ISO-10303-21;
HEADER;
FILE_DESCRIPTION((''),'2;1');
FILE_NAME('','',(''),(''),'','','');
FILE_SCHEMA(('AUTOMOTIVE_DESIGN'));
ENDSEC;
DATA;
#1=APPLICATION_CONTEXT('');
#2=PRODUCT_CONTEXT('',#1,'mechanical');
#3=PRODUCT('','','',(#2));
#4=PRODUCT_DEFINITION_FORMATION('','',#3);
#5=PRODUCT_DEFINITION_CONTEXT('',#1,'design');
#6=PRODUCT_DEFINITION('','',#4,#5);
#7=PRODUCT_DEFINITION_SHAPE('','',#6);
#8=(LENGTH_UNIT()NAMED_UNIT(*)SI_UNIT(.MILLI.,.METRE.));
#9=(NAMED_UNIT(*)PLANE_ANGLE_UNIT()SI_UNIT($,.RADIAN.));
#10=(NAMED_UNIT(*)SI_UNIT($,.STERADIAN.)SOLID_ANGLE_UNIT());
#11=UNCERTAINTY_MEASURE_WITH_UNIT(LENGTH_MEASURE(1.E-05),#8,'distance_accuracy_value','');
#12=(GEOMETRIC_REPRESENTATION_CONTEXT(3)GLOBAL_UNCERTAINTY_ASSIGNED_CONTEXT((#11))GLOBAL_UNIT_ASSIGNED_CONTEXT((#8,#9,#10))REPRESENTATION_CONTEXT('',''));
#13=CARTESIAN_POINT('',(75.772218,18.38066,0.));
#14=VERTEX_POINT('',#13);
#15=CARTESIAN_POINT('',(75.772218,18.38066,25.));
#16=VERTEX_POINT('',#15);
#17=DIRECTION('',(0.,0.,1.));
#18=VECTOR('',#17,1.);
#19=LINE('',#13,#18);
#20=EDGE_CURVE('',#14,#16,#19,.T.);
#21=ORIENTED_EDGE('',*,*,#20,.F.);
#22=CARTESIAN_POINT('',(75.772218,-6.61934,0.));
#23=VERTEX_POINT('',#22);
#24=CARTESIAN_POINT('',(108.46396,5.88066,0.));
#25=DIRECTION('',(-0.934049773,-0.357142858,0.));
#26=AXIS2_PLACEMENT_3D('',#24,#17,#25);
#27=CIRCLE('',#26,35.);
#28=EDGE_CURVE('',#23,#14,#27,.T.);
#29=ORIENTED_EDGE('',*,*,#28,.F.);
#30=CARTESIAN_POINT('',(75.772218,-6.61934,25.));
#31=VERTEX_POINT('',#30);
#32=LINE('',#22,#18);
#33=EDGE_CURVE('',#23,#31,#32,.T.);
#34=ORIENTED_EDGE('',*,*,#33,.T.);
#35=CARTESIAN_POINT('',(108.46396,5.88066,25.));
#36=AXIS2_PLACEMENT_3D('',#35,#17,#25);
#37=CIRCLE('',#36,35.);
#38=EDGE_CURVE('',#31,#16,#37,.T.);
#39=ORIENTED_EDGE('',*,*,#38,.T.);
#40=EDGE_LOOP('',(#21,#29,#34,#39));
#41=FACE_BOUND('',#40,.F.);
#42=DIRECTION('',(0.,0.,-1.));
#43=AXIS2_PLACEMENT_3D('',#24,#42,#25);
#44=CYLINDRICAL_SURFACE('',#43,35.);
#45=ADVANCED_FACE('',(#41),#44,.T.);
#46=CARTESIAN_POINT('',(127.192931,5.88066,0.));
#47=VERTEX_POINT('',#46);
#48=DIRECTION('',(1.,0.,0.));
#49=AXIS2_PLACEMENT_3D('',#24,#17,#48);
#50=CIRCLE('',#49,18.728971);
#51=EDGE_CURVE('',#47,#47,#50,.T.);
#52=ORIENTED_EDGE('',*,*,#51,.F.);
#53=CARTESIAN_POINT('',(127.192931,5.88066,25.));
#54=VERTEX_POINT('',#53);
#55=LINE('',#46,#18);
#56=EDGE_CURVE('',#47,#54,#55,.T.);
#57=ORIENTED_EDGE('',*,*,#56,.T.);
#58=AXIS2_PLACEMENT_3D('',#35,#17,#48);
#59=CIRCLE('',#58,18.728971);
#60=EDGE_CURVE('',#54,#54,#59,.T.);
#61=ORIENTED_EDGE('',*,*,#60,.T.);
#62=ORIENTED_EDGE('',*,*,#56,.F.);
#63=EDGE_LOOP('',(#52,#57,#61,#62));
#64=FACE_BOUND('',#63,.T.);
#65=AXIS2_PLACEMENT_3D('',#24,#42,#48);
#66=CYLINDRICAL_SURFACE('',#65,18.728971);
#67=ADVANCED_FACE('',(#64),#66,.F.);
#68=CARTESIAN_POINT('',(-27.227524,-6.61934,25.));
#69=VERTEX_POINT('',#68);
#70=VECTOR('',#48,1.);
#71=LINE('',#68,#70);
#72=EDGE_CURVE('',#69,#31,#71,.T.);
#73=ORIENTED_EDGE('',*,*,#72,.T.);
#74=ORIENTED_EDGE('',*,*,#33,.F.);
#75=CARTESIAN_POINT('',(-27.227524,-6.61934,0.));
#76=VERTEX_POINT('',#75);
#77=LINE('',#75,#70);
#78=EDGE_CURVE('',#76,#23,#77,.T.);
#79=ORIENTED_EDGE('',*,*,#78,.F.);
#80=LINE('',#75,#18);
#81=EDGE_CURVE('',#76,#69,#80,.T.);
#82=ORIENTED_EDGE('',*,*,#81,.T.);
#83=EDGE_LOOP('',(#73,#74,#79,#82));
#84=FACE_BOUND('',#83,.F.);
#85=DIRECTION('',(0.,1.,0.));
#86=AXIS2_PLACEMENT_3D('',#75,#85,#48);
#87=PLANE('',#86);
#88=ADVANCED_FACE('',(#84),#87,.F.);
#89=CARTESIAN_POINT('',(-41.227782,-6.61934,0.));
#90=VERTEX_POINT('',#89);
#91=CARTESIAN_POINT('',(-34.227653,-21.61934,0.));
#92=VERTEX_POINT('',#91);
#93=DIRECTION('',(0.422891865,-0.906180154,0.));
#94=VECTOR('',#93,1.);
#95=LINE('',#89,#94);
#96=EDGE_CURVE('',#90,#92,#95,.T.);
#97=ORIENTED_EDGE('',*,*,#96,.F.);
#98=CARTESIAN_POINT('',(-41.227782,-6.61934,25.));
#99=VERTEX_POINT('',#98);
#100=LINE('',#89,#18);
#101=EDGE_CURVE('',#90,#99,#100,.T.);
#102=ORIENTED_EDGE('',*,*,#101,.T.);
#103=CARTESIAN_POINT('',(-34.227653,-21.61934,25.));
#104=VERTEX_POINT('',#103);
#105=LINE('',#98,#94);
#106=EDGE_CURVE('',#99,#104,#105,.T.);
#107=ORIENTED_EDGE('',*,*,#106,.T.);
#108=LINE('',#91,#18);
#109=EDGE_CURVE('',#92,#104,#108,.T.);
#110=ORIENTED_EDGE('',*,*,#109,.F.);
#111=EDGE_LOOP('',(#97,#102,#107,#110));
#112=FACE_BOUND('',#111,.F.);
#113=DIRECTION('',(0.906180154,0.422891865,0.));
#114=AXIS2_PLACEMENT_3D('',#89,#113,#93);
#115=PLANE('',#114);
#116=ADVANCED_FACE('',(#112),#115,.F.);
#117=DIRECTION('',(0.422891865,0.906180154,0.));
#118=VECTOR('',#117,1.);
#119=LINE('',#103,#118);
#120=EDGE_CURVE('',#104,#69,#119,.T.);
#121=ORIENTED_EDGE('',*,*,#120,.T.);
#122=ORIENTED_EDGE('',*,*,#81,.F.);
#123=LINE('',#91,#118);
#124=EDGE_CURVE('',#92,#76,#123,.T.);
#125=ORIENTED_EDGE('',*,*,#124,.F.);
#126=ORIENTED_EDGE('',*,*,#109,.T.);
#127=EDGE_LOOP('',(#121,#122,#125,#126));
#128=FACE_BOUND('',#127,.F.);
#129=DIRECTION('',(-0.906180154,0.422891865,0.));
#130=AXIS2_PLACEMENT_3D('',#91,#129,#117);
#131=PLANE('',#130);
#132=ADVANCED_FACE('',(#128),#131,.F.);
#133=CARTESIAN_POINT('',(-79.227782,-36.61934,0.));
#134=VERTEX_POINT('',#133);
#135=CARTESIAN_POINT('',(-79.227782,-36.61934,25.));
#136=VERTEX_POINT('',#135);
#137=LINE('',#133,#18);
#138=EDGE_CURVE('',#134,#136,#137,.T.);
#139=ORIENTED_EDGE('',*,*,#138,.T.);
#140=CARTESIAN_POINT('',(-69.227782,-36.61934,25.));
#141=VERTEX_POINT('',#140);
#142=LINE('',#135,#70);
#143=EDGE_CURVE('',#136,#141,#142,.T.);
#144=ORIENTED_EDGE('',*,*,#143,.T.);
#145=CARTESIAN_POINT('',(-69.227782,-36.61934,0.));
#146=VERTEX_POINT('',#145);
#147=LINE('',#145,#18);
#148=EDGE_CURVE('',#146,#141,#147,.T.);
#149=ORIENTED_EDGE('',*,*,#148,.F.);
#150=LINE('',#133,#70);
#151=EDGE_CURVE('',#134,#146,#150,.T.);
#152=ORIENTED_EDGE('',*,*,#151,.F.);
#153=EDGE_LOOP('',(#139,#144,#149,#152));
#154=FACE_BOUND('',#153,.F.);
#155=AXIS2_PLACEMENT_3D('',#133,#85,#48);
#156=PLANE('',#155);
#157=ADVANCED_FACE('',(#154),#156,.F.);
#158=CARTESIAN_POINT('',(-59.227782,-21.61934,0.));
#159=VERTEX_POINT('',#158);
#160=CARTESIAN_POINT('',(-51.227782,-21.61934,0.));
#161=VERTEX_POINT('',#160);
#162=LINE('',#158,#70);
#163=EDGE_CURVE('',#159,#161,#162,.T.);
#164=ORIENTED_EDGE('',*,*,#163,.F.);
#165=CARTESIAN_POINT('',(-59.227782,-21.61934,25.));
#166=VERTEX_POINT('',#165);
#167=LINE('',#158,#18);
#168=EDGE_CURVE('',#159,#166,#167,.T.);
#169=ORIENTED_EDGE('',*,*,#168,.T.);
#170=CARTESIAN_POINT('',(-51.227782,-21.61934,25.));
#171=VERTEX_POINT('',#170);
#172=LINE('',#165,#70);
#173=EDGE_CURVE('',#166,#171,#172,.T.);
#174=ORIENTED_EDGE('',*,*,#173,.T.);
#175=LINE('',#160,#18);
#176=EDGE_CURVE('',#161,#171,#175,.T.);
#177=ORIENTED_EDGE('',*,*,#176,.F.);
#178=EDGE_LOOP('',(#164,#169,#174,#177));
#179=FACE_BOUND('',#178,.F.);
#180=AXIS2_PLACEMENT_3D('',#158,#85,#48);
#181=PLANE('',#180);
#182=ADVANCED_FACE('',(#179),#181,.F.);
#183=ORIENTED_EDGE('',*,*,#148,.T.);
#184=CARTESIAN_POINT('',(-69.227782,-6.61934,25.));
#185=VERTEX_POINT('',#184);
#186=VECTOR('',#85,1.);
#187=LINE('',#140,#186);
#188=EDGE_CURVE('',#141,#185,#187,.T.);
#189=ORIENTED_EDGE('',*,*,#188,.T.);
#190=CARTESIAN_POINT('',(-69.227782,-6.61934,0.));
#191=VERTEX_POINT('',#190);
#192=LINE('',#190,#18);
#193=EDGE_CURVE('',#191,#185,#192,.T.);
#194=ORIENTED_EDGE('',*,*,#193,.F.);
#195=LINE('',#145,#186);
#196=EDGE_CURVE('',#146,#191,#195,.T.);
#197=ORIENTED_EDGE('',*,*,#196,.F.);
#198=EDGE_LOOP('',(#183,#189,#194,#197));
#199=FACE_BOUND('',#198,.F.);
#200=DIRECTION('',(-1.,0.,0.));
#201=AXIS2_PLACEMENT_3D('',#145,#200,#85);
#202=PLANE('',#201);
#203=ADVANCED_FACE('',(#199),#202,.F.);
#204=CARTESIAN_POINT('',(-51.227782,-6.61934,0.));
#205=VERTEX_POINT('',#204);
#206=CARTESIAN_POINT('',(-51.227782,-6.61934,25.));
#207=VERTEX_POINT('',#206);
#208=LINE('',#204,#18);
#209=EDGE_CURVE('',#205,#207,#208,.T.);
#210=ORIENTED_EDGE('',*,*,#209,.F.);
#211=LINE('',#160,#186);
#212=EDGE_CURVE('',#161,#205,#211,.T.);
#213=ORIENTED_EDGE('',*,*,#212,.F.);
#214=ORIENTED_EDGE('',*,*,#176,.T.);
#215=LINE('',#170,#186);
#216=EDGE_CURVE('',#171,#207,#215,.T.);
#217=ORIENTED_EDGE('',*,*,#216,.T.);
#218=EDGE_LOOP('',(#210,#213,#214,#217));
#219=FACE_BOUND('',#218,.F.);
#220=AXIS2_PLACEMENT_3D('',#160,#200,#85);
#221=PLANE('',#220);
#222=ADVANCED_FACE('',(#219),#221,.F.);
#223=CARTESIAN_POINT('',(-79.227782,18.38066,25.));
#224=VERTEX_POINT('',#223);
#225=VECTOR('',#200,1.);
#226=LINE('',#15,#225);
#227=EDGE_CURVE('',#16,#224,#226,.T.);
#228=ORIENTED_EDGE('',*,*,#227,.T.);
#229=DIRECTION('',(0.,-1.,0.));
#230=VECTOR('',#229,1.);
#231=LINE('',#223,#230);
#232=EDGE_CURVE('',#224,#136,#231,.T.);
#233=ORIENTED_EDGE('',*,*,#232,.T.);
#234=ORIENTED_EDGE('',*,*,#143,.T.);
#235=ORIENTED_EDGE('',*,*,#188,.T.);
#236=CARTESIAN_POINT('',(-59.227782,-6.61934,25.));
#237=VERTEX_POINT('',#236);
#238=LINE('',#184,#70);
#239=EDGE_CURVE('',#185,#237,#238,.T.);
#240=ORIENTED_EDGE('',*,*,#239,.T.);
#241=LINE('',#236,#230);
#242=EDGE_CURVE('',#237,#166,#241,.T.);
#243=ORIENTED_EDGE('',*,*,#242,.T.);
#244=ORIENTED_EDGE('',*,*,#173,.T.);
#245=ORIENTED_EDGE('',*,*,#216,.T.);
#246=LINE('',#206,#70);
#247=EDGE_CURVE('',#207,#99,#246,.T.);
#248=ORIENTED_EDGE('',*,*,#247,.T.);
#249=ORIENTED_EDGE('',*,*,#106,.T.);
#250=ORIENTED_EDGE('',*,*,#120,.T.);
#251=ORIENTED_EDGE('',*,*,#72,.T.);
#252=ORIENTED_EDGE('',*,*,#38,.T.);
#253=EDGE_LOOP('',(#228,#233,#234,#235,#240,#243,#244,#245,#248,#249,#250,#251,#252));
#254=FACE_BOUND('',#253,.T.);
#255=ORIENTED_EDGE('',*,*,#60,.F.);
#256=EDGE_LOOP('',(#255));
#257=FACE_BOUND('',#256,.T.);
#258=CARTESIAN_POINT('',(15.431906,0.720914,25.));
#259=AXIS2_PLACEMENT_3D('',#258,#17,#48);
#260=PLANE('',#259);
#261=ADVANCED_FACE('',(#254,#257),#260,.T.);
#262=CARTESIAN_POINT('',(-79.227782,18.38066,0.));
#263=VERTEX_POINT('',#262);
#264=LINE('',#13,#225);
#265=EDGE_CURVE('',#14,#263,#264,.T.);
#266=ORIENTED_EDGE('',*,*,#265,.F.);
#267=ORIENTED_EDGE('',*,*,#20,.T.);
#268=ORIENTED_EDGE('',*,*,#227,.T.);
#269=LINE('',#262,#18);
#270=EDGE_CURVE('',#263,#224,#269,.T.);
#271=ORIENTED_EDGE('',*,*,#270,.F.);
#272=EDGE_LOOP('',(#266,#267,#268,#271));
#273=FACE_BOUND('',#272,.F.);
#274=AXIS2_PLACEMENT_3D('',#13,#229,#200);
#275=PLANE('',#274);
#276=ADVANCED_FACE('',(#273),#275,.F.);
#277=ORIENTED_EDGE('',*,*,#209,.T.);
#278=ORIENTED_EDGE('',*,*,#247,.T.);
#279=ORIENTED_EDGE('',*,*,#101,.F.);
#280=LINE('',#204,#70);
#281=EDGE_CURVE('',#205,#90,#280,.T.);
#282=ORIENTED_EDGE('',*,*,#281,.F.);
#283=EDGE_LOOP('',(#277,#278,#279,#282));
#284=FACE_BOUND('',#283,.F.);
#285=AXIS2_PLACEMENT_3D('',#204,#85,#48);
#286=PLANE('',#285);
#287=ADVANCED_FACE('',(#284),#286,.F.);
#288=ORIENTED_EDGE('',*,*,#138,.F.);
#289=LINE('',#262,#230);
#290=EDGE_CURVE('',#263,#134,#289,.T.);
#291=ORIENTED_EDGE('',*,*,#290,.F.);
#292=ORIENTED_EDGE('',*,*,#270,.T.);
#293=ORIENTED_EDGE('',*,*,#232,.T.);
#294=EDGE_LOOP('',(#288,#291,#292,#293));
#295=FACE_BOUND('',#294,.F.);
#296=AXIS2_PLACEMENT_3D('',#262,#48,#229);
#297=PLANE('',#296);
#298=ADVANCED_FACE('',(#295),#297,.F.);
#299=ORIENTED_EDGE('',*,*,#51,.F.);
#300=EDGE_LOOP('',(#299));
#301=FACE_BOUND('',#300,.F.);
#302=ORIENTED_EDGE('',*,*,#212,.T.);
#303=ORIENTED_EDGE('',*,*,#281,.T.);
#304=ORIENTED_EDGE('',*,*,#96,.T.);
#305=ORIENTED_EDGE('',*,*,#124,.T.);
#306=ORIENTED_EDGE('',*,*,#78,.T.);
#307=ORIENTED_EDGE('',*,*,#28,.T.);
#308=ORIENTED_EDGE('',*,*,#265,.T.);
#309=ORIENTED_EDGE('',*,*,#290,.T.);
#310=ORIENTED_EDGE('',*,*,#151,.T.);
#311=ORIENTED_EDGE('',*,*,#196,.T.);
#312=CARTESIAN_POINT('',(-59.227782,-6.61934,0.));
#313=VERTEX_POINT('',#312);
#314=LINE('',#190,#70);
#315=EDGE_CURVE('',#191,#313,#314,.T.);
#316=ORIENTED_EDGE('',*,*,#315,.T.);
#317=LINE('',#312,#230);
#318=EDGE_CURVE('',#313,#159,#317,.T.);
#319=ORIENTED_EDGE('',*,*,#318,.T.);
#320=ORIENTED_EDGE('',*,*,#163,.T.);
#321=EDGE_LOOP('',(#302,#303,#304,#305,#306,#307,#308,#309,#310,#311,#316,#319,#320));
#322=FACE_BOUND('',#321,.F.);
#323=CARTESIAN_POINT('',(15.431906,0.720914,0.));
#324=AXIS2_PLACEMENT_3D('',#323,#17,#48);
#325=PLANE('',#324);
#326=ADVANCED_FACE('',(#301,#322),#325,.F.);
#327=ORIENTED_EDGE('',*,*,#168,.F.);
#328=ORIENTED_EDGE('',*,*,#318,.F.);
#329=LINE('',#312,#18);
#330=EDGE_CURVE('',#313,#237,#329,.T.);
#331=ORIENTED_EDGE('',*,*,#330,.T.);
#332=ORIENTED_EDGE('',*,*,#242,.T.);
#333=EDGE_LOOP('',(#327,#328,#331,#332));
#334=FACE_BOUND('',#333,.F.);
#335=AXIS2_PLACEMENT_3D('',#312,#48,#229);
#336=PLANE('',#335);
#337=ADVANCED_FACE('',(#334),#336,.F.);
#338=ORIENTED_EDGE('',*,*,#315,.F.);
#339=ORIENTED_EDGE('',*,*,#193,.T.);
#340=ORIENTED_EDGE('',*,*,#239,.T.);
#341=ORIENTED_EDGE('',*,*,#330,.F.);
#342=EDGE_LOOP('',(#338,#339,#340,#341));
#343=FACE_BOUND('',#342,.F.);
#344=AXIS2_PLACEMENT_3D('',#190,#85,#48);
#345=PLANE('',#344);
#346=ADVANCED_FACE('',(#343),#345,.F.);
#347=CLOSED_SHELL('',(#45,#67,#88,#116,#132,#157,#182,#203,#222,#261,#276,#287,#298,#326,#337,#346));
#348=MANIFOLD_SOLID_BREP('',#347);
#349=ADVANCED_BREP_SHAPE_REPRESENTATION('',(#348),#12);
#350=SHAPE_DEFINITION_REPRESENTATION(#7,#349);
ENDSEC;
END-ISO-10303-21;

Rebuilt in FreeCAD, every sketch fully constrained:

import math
import FreeCAD as App
import Part
import Sketcher
from FreeCAD import Vector

doc = App.newDocument("Part")
body = doc.addObject("PartDesign::Body", "Body")

sketch1 = doc.addObject("Sketcher::SketchObject", "Sketch")
body.addObject(sketch1)
sketch1.AttachmentSupport = (doc.XY_Plane, [""])
sketch1.MapMode = "FlatFace"
sketch1.addGeometry([
    Part.LineSegment(Vector(76, 18, 0), Vector(-79, 18, 0)),
    Part.LineSegment(Vector(-79, 18, 0), Vector(-79, -37, 0)),
    Part.LineSegment(Vector(-79, -37, 0), Vector(-69, -37, 0)),
    Part.LineSegment(Vector(-69, -37, 0), Vector(-69, -7, 0)),
    Part.LineSegment(Vector(-69, -7, 0), Vector(-59, -7, 0)),
    Part.LineSegment(Vector(-59, -7, 0), Vector(-59, -22, 0)),
    Part.LineSegment(Vector(-59, -22, 0), Vector(-51, -22, 0)),
    Part.LineSegment(Vector(-51, -22, 0), Vector(-51, -7, 0)),
    Part.LineSegment(Vector(-51, -7, 0), Vector(-41, -7, 0)),
    Part.LineSegment(Vector(-41, -7, 0), Vector(-34, -22, 0)),
    Part.LineSegment(Vector(-34, -22, 0), Vector(-27, -7, 0)),
    Part.LineSegment(Vector(-27, -7, 0), Vector(76, -7, 0)),
    Part.ArcOfCircle(Part.Circle(Vector(108, 6, 0), Vector(0, 0, 1), 35), math.radians(-159), math.radians(159)),
    Part.Circle(Vector(108, 6, 0), Vector(0, 0, 1), 19),
], False)
sketch1.addConstraint([
    Sketcher.Constraint("Coincident", 0, 2, 1, 1),
    Sketcher.Constraint("Coincident", 1, 2, 2, 1),
    Sketcher.Constraint("Coincident", 2, 2, 3, 1),
    Sketcher.Constraint("Coincident", 3, 2, 4, 1),
    Sketcher.Constraint("Coincident", 4, 2, 5, 1),
    Sketcher.Constraint("Coincident", 5, 2, 6, 1),
    Sketcher.Constraint("Coincident", 6, 2, 7, 1),
    Sketcher.Constraint("Coincident", 7, 2, 8, 1),
    Sketcher.Constraint("Coincident", 8, 2, 9, 1),
    Sketcher.Constraint("Coincident", 9, 2, 10, 1),
    Sketcher.Constraint("Coincident", 10, 2, 11, 1),
    Sketcher.Constraint("Coincident", 11, 2, 12, 1),
    Sketcher.Constraint("Coincident", 12, 2, 0, 1),
    Sketcher.Constraint("Horizontal", 0),
    Sketcher.Constraint("Vertical", 1),
    Sketcher.Constraint("Horizontal", 2),
    Sketcher.Constraint("Vertical", 3),
    Sketcher.Constraint("Horizontal", 4),
    Sketcher.Constraint("Vertical", 5),
    Sketcher.Constraint("Horizontal", 6),
    Sketcher.Constraint("Vertical", 7),
    Sketcher.Constraint("Horizontal", 8),
    Sketcher.Constraint("Horizontal", 11),
    Sketcher.Constraint("Coincident", 13, 3, 12, 3),
    Sketcher.Constraint("Horizontal", 4, 2, 7, 2),
    Sketcher.Constraint("Horizontal", 6, 2, 9, 2),
    Sketcher.Constraint("Horizontal", 8, 2, 10, 2),
    Sketcher.Constraint("Vertical", 11, 2, 12, 2),
    Sketcher.Constraint("Equal", 2, 4),
    Sketcher.Constraint("Equal", 4, 8),
    Sketcher.Constraint("Equal", 9, 10),
    Sketcher.Constraint("Radius", 12, 35.0),
    Sketcher.Constraint("DistanceX", 0, 2, 0, 1, 155.0),
    Sketcher.Constraint("DistanceX", 2, 1, 2, 2, 10.0),
    Sketcher.Constraint("DistanceX", 6, 1, 6, 2, 8.0),
    Sketcher.Constraint("DistanceY", 1, 2, 1, 1, 55.0),
    Sketcher.Constraint("DistanceY", 3, 1, 3, 2, 30.0),
    Sketcher.Constraint("DistanceY", 5, 2, 5, 1, 15.0),
    Sketcher.Constraint("Distance", 9, 16.553),
    Sketcher.Constraint("Diameter", 13, 37.457942),
    Sketcher.Constraint("DistanceX", -1, 1, 12, 3, 108.46396),
    Sketcher.Constraint("DistanceY", -1, 1, 12, 3, 5.88066),
])
pad1 = doc.addObject("PartDesign::Pad", "Pad")
body.addObject(pad1)
pad1.Profile = sketch1
pad1.Length = 25

doc.recompute()
